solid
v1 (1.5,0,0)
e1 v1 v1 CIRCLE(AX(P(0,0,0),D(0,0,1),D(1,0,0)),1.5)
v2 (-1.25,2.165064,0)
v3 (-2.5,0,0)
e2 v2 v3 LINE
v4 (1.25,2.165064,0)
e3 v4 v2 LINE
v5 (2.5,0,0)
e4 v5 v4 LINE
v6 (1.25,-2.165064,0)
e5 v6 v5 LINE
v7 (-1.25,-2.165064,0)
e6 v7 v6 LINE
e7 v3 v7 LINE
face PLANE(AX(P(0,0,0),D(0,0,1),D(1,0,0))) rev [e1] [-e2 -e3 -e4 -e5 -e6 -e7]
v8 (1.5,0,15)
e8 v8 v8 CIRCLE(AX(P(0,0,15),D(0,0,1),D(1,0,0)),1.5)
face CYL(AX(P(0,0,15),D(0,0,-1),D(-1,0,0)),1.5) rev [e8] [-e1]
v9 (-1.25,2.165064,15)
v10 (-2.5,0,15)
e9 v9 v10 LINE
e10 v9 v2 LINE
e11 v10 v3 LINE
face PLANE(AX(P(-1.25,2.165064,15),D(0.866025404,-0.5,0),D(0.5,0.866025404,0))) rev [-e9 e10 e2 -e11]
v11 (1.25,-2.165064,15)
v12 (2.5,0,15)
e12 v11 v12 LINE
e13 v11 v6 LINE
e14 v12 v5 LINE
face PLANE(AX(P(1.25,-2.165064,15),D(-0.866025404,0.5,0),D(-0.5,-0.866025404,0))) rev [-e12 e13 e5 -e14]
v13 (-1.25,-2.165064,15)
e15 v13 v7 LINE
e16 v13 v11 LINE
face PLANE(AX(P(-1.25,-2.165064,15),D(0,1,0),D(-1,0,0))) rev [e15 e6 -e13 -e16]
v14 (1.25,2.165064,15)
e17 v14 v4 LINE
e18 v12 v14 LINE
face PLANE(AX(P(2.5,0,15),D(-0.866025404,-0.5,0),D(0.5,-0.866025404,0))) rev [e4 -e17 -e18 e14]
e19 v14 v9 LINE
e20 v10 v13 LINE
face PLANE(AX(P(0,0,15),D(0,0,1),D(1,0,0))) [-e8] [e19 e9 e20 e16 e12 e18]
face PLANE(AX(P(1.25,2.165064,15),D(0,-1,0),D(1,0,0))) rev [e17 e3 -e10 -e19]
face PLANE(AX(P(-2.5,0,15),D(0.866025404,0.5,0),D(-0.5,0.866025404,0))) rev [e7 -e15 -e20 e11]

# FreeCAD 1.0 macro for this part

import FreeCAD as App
import Part
import Sketcher

V = App.Vector
Q = App.Units.Quantity


def add_polygon(sketch, points):
    """Adds a closed chain of lines whose ends are joined by coincident constraints."""
    first, n = sketch.GeometryCount, len(points)
    for a, b in zip(points, points[1:] + points[:1]):
        sketch.addGeometry(Part.LineSegment(App.Vector(*a, 0), App.Vector(*b, 0)), False)
    for i in range(n):
        sketch.addConstraint(Sketcher.Constraint("Coincident", first + i, 2, first + (i + 1) % n, 1))

doc = App.newDocument("Part")
params = doc.addObject("Spreadsheet::Sheet", "Params")
for row, (alias, value) in enumerate([
    ("sketch1_diameter", "3 mm"),
    ("sketch1_width", "2.5 mm"),
    ("sketch1_length", "2.5 mm"),
    ("pad1_length", "15 mm"),
], start=1):
    params.set(f"A{row}", alias)
    params.set(f"B{row}", "=" + value)
    params.setAlias(f"B{row}", alias)

body = doc.addObject("PartDesign::Body", "Body")

sketch1 = body.newObject("Sketcher::SketchObject", "Sketch")
sketch1.AttachmentSupport = (doc.getObject("XY_Plane"), [""])
sketch1.MapMode = "FlatFace"
add_polygon(sketch1, [(2.5, 0), (1.25, 2.165064), (-1.25, 2.165064), (-2.5, 0), (-1.25, -2.165064), (1.25, -2.165064)])
sketch1.addGeometry(Part.Circle(V(0, 0, 0), V(0, 0, 1), 1.5), False)
sketch1.addConstraint([
    Sketcher.Constraint("Horizontal", 1),
    Sketcher.Constraint("Horizontal", 4),
    Sketcher.Constraint("Coincident", 6, 3, -1, 1),
    Sketcher.Constraint("Symmetric", 0, 2, 3, 2, -1, 1),
    Sketcher.Constraint("Symmetric", 2, 2, 5, 2, -1, 1),
    Sketcher.Constraint("PointOnObject", 2, 2, -1),
    Sketcher.Constraint("Parallel", 2, 5),
    Sketcher.Constraint("Vertical", 1, 2, 3, 2),
    Sketcher.Constraint("Diameter", 6, Q("3 mm")),
    Sketcher.Constraint("Angle", 0, Q("120 deg")),
    Sketcher.Constraint("DistanceX", 1, 2, 1, 1, Q("2.5 mm")),
    Sketcher.Constraint("Distance", 0, Q("2.5 mm")),
])
sketch1.setExpression("Constraints[14]", "Params.sketch1_diameter")
sketch1.setExpression("Constraints[16]", "Params.sketch1_width")
sketch1.setExpression("Constraints[17]", "Params.sketch1_length")
pad1 = body.newObject("PartDesign::Pad", "Pad")
pad1.Profile = sketch1
pad1.setExpression("Length", "Params.pad1_length")

doc.recompute()
